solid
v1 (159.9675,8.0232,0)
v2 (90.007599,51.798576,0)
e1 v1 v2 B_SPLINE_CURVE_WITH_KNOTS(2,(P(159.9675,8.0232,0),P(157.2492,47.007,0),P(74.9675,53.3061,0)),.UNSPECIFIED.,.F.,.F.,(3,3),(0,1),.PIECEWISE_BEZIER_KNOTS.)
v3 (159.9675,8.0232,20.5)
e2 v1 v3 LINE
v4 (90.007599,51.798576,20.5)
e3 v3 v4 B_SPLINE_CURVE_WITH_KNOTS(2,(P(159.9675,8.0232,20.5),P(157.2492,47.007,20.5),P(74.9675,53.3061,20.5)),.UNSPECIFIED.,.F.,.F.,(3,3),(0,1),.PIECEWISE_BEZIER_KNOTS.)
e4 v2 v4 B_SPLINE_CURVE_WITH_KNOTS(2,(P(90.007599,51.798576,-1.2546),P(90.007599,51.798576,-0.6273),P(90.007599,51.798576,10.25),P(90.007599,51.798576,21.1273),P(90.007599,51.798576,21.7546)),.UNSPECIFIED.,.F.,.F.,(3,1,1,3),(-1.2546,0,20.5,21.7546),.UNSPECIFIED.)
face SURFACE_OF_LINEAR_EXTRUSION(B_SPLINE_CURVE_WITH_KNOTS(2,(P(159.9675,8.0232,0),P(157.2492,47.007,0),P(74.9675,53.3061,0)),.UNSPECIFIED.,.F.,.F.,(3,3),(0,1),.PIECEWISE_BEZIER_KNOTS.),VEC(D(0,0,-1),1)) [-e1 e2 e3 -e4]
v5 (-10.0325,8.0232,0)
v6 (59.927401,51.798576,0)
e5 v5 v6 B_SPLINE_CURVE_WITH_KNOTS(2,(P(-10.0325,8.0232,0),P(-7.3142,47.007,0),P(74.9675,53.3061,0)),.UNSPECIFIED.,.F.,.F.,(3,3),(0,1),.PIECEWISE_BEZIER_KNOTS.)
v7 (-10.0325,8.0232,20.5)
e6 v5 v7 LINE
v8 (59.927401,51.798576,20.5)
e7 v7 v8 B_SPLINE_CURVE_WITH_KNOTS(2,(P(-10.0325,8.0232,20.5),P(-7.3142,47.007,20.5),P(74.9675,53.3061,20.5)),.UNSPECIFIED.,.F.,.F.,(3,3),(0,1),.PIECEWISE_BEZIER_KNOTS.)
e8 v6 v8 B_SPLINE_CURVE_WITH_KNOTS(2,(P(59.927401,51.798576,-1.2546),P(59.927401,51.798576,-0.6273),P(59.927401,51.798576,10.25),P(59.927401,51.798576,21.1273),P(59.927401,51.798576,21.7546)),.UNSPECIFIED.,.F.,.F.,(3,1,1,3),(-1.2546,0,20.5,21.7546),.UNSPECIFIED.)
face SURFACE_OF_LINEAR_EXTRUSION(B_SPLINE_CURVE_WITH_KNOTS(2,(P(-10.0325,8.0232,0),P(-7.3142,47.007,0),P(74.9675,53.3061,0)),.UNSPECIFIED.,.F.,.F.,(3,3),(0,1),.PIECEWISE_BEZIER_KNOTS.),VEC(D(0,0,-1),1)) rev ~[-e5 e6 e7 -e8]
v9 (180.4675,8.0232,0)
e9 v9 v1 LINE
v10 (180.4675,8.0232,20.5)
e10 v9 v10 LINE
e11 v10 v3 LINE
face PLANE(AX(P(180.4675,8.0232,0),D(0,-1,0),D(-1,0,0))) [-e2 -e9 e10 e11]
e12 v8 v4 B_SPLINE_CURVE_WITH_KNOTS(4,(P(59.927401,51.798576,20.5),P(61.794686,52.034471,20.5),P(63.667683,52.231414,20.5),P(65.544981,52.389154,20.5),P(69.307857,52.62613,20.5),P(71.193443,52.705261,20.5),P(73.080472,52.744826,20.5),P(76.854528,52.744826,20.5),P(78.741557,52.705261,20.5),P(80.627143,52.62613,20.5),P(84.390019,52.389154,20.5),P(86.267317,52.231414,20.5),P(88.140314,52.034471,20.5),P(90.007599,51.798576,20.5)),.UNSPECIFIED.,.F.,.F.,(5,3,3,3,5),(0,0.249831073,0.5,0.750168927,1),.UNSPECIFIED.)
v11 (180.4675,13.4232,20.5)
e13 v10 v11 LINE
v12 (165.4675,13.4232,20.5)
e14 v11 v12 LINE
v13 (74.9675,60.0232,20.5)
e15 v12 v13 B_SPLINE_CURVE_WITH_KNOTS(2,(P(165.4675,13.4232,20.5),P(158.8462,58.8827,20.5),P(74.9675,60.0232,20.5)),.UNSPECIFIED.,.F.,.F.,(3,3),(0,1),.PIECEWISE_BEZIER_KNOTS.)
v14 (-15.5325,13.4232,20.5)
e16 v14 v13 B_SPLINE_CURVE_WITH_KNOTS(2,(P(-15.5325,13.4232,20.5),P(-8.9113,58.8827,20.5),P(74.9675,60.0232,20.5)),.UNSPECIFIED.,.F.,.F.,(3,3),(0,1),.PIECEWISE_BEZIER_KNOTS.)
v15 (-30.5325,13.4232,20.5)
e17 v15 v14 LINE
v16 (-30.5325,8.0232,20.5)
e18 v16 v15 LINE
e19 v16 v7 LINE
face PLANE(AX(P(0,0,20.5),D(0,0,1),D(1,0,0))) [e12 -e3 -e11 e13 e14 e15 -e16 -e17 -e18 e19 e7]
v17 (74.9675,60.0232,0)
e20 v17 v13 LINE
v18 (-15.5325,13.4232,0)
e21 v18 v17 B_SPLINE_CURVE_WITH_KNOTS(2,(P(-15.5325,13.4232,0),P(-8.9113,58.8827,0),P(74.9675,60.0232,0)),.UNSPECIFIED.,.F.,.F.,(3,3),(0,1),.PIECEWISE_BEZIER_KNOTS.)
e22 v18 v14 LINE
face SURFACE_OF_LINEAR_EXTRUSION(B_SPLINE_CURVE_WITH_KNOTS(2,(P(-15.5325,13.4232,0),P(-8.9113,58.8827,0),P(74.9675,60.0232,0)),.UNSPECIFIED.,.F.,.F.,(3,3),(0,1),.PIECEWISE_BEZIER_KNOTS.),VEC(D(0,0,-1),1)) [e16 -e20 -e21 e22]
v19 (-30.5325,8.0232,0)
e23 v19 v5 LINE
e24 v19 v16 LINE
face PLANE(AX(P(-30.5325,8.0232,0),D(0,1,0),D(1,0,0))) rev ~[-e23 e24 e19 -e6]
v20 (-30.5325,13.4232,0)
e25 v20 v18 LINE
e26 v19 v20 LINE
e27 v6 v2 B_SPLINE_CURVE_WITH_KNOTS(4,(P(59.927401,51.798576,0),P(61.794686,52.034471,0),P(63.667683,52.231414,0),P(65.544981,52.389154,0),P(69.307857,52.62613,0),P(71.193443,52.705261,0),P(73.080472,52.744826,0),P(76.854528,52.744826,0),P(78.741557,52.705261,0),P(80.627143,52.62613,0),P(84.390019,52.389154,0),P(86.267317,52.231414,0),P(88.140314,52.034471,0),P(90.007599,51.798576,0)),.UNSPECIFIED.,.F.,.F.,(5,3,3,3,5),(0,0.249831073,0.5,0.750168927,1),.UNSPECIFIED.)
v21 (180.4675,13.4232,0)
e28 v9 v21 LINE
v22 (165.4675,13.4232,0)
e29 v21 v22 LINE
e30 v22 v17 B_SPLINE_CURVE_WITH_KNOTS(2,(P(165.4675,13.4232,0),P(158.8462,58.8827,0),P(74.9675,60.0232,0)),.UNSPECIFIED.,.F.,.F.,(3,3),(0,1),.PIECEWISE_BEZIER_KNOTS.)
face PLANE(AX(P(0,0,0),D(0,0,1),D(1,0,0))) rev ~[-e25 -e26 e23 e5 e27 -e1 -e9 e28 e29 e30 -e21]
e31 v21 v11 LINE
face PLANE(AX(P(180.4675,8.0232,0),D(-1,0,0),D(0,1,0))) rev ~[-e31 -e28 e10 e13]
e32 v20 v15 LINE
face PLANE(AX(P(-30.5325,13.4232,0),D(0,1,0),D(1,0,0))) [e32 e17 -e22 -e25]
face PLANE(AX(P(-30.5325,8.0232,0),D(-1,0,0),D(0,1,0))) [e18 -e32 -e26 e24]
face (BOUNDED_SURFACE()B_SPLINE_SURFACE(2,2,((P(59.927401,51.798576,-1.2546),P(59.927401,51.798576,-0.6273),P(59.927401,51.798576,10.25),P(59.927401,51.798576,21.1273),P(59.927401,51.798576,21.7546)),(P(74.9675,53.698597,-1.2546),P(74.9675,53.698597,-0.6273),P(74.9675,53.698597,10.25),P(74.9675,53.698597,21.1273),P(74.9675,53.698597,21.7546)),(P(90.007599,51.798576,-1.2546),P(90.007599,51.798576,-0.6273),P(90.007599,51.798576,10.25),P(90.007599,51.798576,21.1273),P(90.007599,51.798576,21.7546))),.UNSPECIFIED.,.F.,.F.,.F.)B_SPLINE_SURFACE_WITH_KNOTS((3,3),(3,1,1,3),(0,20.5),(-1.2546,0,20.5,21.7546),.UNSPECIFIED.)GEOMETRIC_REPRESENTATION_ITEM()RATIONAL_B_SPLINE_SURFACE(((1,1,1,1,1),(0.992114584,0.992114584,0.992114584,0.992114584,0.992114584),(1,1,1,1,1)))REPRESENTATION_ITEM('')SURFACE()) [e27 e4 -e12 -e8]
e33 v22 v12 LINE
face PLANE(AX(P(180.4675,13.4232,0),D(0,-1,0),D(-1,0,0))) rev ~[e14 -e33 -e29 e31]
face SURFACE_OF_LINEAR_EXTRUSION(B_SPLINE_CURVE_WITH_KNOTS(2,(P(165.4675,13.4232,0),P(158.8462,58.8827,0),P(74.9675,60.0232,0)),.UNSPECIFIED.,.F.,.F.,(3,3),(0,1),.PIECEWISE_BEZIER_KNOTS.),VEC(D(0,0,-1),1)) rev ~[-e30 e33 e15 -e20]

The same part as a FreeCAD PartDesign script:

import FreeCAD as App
import Part
import Sketcher


def edges_at(feature, points):
    """Names of the edges that pass closest to the given points."""
    edges = feature.Shape.Edges
    near = lambda p: min(range(len(edges)), key=lambda i: edges[i].distToShape(Part.Vertex(*p))[0])
    return sorted({f"Edge{near(p) + 1}" for p in points})

doc = App.newDocument("Part")
body = doc.addObject("PartDesign::Body", "Body")

# Sketch on XY plane
sketch1 = body.newObject("Sketcher::SketchObject", "Sketch")
sketch1.AttachmentSupport = (doc.getObject("XY_Plane"), [""])
sketch1.MapMode = "FlatFace"
sketch1.addGeometry(Part.LineSegment(App.Vector(-30.5325, 13.4232, 0), App.Vector(-30.5325, 8.0232, 0)), False)
sketch1.addGeometry(Part.LineSegment(App.Vector(-30.5325, 8.0232, 0), App.Vector(-10.0325, 8.0232, 0)), False)
sketch1.addGeometry(Part.BSplineCurve([App.Vector(-10.0325, 8.0232, 0), App.Vector(-7.3142, 47.007, 0), App.Vector(74.9675, 53.3061, 0)], [3, 3], [0, 1], False, 2, [1, 1, 1], False), False)
sketch1.addGeometry(Part.BSplineCurve([App.Vector(159.9675, 8.0232, 0), App.Vector(157.2492, 47.007, 0), App.Vector(74.9675, 53.3061, 0)], [3, 3], [0, 1], False, 2, [1, 1, 1], False), False)
sketch1.addGeometry(Part.LineSegment(App.Vector(159.9675, 8.0232, 0), App.Vector(180.4675, 8.0232, 0)), False)
sketch1.addGeometry(Part.LineSegment(App.Vector(180.4675, 8.0232, 0), App.Vector(180.4675, 13.4232, 0)), False)
sketch1.addGeometry(Part.LineSegment(App.Vector(180.4675, 13.4232, 0), App.Vector(165.4675, 13.4232, 0)), False)
sketch1.addGeometry(Part.BSplineCurve([App.Vector(165.4675, 13.4232, 0), App.Vector(158.8462, 58.8827, 0), App.Vector(74.9675, 60.0232, 0)], [3, 3], [0, 1], False, 2, [1, 1, 1], False), False)
sketch1.addGeometry(Part.BSplineCurve([App.Vector(-15.5325, 13.4232, 0), App.Vector(-8.9113, 58.8827, 0), App.Vector(74.9675, 60.0232, 0)], [3, 3], [0, 1], False, 2, [1, 1, 1], False), False)
sketch1.addGeometry(Part.LineSegment(App.Vector(-15.5325, 13.4232, 0), App.Vector(-30.5325, 13.4232, 0)), False)
sketch1.addConstraint(Sketcher.Constraint("Block", 2))
sketch1.addConstraint(Sketcher.Constraint("Block", 3))
sketch1.addConstraint(Sketcher.Constraint("Block", 7))
sketch1.addConstraint(Sketcher.Constraint("Block", 8))
sketch1.addConstraint(Sketcher.Constraint("Coincident", 0, 2, 1, 1))
sketch1.addConstraint(Sketcher.Constraint("Coincident", 1, 2, 2, 1))
sketch1.addConstraint(Sketcher.Constraint("Coincident", 3, 1, 4, 1))
sketch1.addConstraint(Sketcher.Constraint("Coincident", 4, 2, 5, 1))
sketch1.addConstraint(Sketcher.Constraint("Coincident", 5, 2, 6, 1))
sketch1.addConstraint(Sketcher.Constraint("Coincident", 6, 2, 7, 1))
sketch1.addConstraint(Sketcher.Constraint("Coincident", 8, 1, 9, 1))
sketch1.addConstraint(Sketcher.Constraint("Coincident", 9, 2, 0, 1))
sketch1.addConstraint(Sketcher.Constraint("Vertical", 0))
sketch1.addConstraint(Sketcher.Constraint("Horizontal", 1))
sketch1.addConstraint(Sketcher.Constraint("Horizontal", 4))
sketch1.addConstraint(Sketcher.Constraint("Vertical", 5))
sketch1.addConstraint(Sketcher.Constraint("Horizontal", 6))
sketch1.addConstraint(Sketcher.Constraint("Horizontal", 9))
sketch1.addConstraint(Sketcher.Constraint("Equal", 1, 4))
sketch1.addConstraint(Sketcher.Constraint("DistanceX", 6, 2, 6, 1, 15.0))
pad1 = body.newObject("PartDesign::Pad", "Pad")
pad1.Profile = sketch1
pad1.Length = 20.5
doc.recompute()

fillet = body.newObject("PartDesign::Fillet", "Fillet")
fillet.Base = (pad1, edges_at(pad1, [(74.968, 53.306, 10.25)]))
fillet.Radius = 120

doc.recompute()
